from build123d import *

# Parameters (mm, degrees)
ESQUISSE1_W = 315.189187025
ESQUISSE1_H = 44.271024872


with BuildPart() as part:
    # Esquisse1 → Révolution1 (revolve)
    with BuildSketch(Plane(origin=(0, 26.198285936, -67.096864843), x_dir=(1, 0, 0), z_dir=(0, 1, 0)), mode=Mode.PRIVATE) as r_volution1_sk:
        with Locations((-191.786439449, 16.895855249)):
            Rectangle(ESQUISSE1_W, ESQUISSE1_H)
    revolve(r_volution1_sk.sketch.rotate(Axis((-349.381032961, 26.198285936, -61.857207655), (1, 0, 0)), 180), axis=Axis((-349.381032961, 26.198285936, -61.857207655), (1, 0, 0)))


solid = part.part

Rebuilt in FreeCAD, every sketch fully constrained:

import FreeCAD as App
import Part
import Sketcher


def add_polygon(sketch, points):
    """Adds a closed chain of lines whose ends are joined by coincident constraints."""
    first, n = sketch.GeometryCount, len(points)
    for a, b in zip(points, points[1:] + points[:1]):
        sketch.addGeometry(Part.LineSegment(App.Vector(*a, 0), App.Vector(*b, 0)), False)
    for i in range(n):
        sketch.addConstraint(Sketcher.Constraint("Coincident", first + i, 2, first + (i + 1) % n, 1))

doc = App.newDocument("Part")
body = doc.addObject("PartDesign::Body", "Body")

# Sketch on XZ plane
sketch1 = doc.addObject("Sketcher::SketchObject", "Sketch")
body.addObject(sketch1)
sketch1.AttachmentSupport = (doc.XZ_Plane, [""])
sketch1.MapMode = "FlatFace"
sketch1.AttachmentOffset = App.Placement(App.Vector(0, 0, -26.198286), App.Rotation())
add_polygon(sketch1, [(-349, -106), (-349, -62), (-34, -62), (-34, -106)])  # lines 0-3
sketch1.addGeometry(Part.LineSegment(App.Vector(-349, -62, 0), App.Vector(-34, -62, 0)), True)  # axis
sketch1.addConstraint([
    Sketcher.Constraint("Vertical", 0),
    Sketcher.Constraint("Horizontal", 1),
    Sketcher.Constraint("Vertical", 2),
    Sketcher.Constraint("Horizontal", 3),
    Sketcher.Constraint("Horizontal", 4),
    Sketcher.Constraint("Coincident", 4, 1, 0, 2),
    Sketcher.Constraint("Vertical", 2, 2, 4, 2),
    Sketcher.Constraint("DistanceX", 1, 1, 1, 2, 315.189187),
    Sketcher.Constraint("DistanceY", 0, 1, 0, 2, 44.271025),
    Sketcher.Constraint("DistanceX", 0, 2, -1, 1, 349.381033),
    Sketcher.Constraint("DistanceY", 0, 2, -1, 1, 61.857208),
])
revolution = doc.addObject("PartDesign::Revolution", "Revolution")
body.addObject(revolution)
revolution.Profile = sketch1
revolution.ReferenceAxis = (sketch1, ["Axis0"])
revolution.Angle = 360

doc.recompute()
